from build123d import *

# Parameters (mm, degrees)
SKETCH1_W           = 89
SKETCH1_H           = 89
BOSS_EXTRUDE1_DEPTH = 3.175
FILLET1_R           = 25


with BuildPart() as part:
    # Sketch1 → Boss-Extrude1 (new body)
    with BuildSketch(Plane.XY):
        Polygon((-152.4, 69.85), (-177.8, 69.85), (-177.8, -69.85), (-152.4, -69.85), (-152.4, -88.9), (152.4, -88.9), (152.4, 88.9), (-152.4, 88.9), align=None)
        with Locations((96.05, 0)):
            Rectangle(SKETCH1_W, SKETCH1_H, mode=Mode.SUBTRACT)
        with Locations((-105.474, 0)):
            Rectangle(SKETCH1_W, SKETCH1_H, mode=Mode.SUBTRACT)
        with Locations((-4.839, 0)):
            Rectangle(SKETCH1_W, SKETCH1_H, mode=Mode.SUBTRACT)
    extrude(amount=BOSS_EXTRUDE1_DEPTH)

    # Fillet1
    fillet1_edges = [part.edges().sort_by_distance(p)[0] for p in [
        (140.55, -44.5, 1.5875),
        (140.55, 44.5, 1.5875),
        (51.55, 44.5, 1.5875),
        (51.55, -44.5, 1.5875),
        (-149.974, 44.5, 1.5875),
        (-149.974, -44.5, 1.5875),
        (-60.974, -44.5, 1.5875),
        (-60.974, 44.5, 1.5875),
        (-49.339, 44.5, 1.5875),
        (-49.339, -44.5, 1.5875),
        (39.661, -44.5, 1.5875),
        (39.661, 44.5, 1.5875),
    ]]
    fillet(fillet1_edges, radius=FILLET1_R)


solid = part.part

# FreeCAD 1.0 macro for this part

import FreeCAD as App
import Part
import Sketcher
from FreeCAD import Vector
Q = App.Units.Quantity


def edges_at(feature, points):
    """Names of the edges that pass closest to the given points."""
    edges = feature.Shape.Edges
    near = lambda p: min(range(len(edges)), key=lambda i: edges[i].distToShape(Part.Vertex(*p))[0])
    return sorted({f"Edge{near(p) + 1}" for p in points})


def add_polygon(sketch, points):
    """Adds a closed chain of lines whose ends are joined by coincident constraints."""
    first, n = sketch.GeometryCount, len(points)
    for a, b in zip(points, points[1:] + points[:1]):
        sketch.addGeometry(Part.LineSegment(App.Vector(*a, 0), App.Vector(*b, 0)), False)
    for i in range(n):
        sketch.addConstraint(Sketcher.Constraint("Coincident", first + i, 2, first + (i + 1) % n, 1))

doc = App.newDocument("Part")
params = doc.addObject("Spreadsheet::Sheet", "Params")
for row, (alias, value) in enumerate([
    ("sketch1_width", "1 in"),
    ("sketch1_width2", "12 in"),
    ("sketch1_height", "7 in"),
    ("sketch1_height2", "5.5 in"),
    ("pad1_length", "0.125 in"),
    ("fillet_radius", "25 mm"),
], start=1):
    params.set(f"A{row}", alias)
    params.set(f"B{row}", "=" + value)
    params.setAlias(f"B{row}", alias)

body = doc.addObject("PartDesign::Body", "Body")

# Sketch on XY plane
sketch1 = body.newObject("Sketcher::SketchObject", "Sketch")
sketch1.AttachmentSupport = (doc.getObject("XY_Plane"), [""])
sketch1.MapMode = "FlatFace"
add_polygon(sketch1, [(-152, 70), (-178, 70), (-178, -70), (-152, -70), (-152, -89), (152, -89), (152, 89), (-152, 89)])  # lines 0-7
add_polygon(sketch1, [(-61, -44), (-150, -44), (-150, 44), (-61, 44)])  # lines 8-11
add_polygon(sketch1, [(40, -44), (-49, -44), (-49, 44), (40, 44)])  # lines 12-15
add_polygon(sketch1, [(141, -44), (52, -44), (52, 44), (141, 44)])  # lines 16-19
sketch1.addConstraint(Sketcher.Constraint("Horizontal", 0))
sketch1.addConstraint(Sketcher.Constraint("Vertical", 1))
sketch1.addConstraint(Sketcher.Constraint("Horizontal", 2))
sketch1.addConstraint(Sketcher.Constraint("Vertical", 3))
sketch1.addConstraint(Sketcher.Constraint("Horizontal", 4))
sketch1.addConstraint(Sketcher.Constraint("Vertical", 5))
sketch1.addConstraint(Sketcher.Constraint("Horizontal", 6))
sketch1.addConstraint(Sketcher.Constraint("Vertical", 7))
sketch1.addConstraint(Sketcher.Constraint("Horizontal", 8))
sketch1.addConstraint(Sketcher.Constraint("Vertical", 9))
sketch1.addConstraint(Sketcher.Constraint("Horizontal", 10))
sketch1.addConstraint(Sketcher.Constraint("Vertical", 11))
sketch1.addConstraint(Sketcher.Constraint("Horizontal", 12))
sketch1.addConstraint(Sketcher.Constraint("Vertical", 13))
sketch1.addConstraint(Sketcher.Constraint("Horizontal", 14))
sketch1.addConstraint(Sketcher.Constraint("Vertical", 15))
sketch1.addConstraint(Sketcher.Constraint("Horizontal", 16))
sketch1.addConstraint(Sketcher.Constraint("Vertical", 17))
sketch1.addConstraint(Sketcher.Constraint("Horizontal", 18))
sketch1.addConstraint(Sketcher.Constraint("Vertical", 19))
sketch1.addConstraint(Sketcher.Constraint("Symmetric", 3, 2, 5, 2, -1, 1))
sketch1.addConstraint(Sketcher.Constraint("Symmetric", 2, 2, 7, 2, -1))
sketch1.addConstraint(Sketcher.Constraint("Horizontal", 11, 2, 12, 2))
sketch1.addConstraint(Sketcher.Constraint("Horizontal", 10, 2, 13, 2))
sketch1.addConstraint(Sketcher.Constraint("Horizontal", 15, 2, 16, 2))
sketch1.addConstraint(Sketcher.Constraint("Horizontal", 14, 2, 17, 2))
sketch1.addConstraint(Sketcher.Constraint("Equal", 10, 12))
sketch1.addConstraint(Sketcher.Constraint("Equal", 14, 16))
sketch1.addConstraint(Sketcher.Constraint("Equal", 18, 9))
sketch1.addConstraint(Sketcher.Constraint("DistanceX", 0, 2, 0, 1, Q("1 in")))
sketch1.addConstraint(Sketcher.Constraint("DistanceX", 4, 1, 4, 2, Q("12 in")))
sketch1.addConstraint(Sketcher.Constraint("DistanceY", 5, 1, 5, 2, Q("7 in")))
sketch1.addConstraint(Sketcher.Constraint("DistanceY", 1, 2, 1, 1, Q("5.5 in")))
sketch1.addConstraint(Sketcher.Constraint("DistanceX", 8, 2, 8, 1, Q("89 mm")))
sketch1.addConstraint(Sketcher.Constraint("DistanceX", 8, 2, -1, 1, Q("149.974 mm")))
sketch1.addConstraint(Sketcher.Constraint("DistanceY", 8, 2, -1, 1, Q("44.5 mm")))
sketch1.addConstraint(Sketcher.Constraint("DistanceX", 12, 2, -1, 1, Q("49.339 mm")))
sketch1.addConstraint(Sketcher.Constraint("DistanceX", -1, 1, 16, 2, Q("51.55 mm")))
sketch1.setExpression("Constraints[49]", "Params.sketch1_width")
sketch1.setExpression("Constraints[50]", "Params.sketch1_width2")
sketch1.setExpression("Constraints[51]", "Params.sketch1_height")
sketch1.setExpression("Constraints[52]", "Params.sketch1_height2")
pad1 = body.newObject("PartDesign::Pad", "Pad")
pad1.Profile = sketch1
pad1.setExpression("Length", "Params.pad1_length")
doc.recompute()

fillet = body.newObject("PartDesign::Fillet", "Fillet")
fillet.Base = (pad1, edges_at(pad1, [
    (140.55, -44.5, 1.587),
    (140.55, 44.5, 1.587),
    (51.55, 44.5, 1.587),
    (51.55, -44.5, 1.587),
    (-149.974, 44.5, 1.587),
    (-149.974, -44.5, 1.587),
    (-60.974, -44.5, 1.587),
    (-60.974, 44.5, 1.587),
    (-49.339, 44.5, 1.587),
    (-49.339, -44.5, 1.587),
    (39.661, -44.5, 1.587),
    (39.661, 44.5, 1.587),
]))
fillet.setExpression("Radius", "Params.fillet_radius")

doc.recompute()
